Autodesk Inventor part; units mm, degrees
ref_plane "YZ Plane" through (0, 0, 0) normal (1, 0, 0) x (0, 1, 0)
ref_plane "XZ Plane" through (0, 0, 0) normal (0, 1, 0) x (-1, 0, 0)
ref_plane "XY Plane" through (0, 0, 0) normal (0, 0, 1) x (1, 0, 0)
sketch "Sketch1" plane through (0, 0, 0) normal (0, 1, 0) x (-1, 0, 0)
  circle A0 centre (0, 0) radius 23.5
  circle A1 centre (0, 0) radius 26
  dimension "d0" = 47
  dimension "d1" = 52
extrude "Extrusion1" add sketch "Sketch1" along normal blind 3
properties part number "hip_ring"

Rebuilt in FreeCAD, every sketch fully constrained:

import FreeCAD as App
import Part
import Sketcher

doc = App.newDocument("Part")
body = doc.addObject("PartDesign::Body", "Body")

# Sketch on XZ plane
sketch1 = body.newObject("Sketcher::SketchObject", "Sketch")
sketch1.AttachmentSupport = (doc.getObject("XZ_Plane"), [""])
sketch1.MapMode = "FlatFace"
sketch1.addGeometry([
    Part.Circle(App.Vector(0, 0, 0), App.Vector(0, 0, 1), 26),
    Part.Circle(App.Vector(0, 0, 0), App.Vector(0, 0, 1), 24),
], False)
sketch1.addConstraint([
    Sketcher.Constraint("Coincident", 0, 3, -1, 1),
    Sketcher.Constraint("Coincident", 1, 3, -1, 1),
    Sketcher.Constraint("Diameter", 0, 52.0),
    Sketcher.Constraint("Diameter", 1, 47.0),
])
pad1 = body.newObject("PartDesign::Pad", "Pad")
pad1.Profile = sketch1
pad1.Length = 3
pad1.Reversed = True

doc.recompute()
